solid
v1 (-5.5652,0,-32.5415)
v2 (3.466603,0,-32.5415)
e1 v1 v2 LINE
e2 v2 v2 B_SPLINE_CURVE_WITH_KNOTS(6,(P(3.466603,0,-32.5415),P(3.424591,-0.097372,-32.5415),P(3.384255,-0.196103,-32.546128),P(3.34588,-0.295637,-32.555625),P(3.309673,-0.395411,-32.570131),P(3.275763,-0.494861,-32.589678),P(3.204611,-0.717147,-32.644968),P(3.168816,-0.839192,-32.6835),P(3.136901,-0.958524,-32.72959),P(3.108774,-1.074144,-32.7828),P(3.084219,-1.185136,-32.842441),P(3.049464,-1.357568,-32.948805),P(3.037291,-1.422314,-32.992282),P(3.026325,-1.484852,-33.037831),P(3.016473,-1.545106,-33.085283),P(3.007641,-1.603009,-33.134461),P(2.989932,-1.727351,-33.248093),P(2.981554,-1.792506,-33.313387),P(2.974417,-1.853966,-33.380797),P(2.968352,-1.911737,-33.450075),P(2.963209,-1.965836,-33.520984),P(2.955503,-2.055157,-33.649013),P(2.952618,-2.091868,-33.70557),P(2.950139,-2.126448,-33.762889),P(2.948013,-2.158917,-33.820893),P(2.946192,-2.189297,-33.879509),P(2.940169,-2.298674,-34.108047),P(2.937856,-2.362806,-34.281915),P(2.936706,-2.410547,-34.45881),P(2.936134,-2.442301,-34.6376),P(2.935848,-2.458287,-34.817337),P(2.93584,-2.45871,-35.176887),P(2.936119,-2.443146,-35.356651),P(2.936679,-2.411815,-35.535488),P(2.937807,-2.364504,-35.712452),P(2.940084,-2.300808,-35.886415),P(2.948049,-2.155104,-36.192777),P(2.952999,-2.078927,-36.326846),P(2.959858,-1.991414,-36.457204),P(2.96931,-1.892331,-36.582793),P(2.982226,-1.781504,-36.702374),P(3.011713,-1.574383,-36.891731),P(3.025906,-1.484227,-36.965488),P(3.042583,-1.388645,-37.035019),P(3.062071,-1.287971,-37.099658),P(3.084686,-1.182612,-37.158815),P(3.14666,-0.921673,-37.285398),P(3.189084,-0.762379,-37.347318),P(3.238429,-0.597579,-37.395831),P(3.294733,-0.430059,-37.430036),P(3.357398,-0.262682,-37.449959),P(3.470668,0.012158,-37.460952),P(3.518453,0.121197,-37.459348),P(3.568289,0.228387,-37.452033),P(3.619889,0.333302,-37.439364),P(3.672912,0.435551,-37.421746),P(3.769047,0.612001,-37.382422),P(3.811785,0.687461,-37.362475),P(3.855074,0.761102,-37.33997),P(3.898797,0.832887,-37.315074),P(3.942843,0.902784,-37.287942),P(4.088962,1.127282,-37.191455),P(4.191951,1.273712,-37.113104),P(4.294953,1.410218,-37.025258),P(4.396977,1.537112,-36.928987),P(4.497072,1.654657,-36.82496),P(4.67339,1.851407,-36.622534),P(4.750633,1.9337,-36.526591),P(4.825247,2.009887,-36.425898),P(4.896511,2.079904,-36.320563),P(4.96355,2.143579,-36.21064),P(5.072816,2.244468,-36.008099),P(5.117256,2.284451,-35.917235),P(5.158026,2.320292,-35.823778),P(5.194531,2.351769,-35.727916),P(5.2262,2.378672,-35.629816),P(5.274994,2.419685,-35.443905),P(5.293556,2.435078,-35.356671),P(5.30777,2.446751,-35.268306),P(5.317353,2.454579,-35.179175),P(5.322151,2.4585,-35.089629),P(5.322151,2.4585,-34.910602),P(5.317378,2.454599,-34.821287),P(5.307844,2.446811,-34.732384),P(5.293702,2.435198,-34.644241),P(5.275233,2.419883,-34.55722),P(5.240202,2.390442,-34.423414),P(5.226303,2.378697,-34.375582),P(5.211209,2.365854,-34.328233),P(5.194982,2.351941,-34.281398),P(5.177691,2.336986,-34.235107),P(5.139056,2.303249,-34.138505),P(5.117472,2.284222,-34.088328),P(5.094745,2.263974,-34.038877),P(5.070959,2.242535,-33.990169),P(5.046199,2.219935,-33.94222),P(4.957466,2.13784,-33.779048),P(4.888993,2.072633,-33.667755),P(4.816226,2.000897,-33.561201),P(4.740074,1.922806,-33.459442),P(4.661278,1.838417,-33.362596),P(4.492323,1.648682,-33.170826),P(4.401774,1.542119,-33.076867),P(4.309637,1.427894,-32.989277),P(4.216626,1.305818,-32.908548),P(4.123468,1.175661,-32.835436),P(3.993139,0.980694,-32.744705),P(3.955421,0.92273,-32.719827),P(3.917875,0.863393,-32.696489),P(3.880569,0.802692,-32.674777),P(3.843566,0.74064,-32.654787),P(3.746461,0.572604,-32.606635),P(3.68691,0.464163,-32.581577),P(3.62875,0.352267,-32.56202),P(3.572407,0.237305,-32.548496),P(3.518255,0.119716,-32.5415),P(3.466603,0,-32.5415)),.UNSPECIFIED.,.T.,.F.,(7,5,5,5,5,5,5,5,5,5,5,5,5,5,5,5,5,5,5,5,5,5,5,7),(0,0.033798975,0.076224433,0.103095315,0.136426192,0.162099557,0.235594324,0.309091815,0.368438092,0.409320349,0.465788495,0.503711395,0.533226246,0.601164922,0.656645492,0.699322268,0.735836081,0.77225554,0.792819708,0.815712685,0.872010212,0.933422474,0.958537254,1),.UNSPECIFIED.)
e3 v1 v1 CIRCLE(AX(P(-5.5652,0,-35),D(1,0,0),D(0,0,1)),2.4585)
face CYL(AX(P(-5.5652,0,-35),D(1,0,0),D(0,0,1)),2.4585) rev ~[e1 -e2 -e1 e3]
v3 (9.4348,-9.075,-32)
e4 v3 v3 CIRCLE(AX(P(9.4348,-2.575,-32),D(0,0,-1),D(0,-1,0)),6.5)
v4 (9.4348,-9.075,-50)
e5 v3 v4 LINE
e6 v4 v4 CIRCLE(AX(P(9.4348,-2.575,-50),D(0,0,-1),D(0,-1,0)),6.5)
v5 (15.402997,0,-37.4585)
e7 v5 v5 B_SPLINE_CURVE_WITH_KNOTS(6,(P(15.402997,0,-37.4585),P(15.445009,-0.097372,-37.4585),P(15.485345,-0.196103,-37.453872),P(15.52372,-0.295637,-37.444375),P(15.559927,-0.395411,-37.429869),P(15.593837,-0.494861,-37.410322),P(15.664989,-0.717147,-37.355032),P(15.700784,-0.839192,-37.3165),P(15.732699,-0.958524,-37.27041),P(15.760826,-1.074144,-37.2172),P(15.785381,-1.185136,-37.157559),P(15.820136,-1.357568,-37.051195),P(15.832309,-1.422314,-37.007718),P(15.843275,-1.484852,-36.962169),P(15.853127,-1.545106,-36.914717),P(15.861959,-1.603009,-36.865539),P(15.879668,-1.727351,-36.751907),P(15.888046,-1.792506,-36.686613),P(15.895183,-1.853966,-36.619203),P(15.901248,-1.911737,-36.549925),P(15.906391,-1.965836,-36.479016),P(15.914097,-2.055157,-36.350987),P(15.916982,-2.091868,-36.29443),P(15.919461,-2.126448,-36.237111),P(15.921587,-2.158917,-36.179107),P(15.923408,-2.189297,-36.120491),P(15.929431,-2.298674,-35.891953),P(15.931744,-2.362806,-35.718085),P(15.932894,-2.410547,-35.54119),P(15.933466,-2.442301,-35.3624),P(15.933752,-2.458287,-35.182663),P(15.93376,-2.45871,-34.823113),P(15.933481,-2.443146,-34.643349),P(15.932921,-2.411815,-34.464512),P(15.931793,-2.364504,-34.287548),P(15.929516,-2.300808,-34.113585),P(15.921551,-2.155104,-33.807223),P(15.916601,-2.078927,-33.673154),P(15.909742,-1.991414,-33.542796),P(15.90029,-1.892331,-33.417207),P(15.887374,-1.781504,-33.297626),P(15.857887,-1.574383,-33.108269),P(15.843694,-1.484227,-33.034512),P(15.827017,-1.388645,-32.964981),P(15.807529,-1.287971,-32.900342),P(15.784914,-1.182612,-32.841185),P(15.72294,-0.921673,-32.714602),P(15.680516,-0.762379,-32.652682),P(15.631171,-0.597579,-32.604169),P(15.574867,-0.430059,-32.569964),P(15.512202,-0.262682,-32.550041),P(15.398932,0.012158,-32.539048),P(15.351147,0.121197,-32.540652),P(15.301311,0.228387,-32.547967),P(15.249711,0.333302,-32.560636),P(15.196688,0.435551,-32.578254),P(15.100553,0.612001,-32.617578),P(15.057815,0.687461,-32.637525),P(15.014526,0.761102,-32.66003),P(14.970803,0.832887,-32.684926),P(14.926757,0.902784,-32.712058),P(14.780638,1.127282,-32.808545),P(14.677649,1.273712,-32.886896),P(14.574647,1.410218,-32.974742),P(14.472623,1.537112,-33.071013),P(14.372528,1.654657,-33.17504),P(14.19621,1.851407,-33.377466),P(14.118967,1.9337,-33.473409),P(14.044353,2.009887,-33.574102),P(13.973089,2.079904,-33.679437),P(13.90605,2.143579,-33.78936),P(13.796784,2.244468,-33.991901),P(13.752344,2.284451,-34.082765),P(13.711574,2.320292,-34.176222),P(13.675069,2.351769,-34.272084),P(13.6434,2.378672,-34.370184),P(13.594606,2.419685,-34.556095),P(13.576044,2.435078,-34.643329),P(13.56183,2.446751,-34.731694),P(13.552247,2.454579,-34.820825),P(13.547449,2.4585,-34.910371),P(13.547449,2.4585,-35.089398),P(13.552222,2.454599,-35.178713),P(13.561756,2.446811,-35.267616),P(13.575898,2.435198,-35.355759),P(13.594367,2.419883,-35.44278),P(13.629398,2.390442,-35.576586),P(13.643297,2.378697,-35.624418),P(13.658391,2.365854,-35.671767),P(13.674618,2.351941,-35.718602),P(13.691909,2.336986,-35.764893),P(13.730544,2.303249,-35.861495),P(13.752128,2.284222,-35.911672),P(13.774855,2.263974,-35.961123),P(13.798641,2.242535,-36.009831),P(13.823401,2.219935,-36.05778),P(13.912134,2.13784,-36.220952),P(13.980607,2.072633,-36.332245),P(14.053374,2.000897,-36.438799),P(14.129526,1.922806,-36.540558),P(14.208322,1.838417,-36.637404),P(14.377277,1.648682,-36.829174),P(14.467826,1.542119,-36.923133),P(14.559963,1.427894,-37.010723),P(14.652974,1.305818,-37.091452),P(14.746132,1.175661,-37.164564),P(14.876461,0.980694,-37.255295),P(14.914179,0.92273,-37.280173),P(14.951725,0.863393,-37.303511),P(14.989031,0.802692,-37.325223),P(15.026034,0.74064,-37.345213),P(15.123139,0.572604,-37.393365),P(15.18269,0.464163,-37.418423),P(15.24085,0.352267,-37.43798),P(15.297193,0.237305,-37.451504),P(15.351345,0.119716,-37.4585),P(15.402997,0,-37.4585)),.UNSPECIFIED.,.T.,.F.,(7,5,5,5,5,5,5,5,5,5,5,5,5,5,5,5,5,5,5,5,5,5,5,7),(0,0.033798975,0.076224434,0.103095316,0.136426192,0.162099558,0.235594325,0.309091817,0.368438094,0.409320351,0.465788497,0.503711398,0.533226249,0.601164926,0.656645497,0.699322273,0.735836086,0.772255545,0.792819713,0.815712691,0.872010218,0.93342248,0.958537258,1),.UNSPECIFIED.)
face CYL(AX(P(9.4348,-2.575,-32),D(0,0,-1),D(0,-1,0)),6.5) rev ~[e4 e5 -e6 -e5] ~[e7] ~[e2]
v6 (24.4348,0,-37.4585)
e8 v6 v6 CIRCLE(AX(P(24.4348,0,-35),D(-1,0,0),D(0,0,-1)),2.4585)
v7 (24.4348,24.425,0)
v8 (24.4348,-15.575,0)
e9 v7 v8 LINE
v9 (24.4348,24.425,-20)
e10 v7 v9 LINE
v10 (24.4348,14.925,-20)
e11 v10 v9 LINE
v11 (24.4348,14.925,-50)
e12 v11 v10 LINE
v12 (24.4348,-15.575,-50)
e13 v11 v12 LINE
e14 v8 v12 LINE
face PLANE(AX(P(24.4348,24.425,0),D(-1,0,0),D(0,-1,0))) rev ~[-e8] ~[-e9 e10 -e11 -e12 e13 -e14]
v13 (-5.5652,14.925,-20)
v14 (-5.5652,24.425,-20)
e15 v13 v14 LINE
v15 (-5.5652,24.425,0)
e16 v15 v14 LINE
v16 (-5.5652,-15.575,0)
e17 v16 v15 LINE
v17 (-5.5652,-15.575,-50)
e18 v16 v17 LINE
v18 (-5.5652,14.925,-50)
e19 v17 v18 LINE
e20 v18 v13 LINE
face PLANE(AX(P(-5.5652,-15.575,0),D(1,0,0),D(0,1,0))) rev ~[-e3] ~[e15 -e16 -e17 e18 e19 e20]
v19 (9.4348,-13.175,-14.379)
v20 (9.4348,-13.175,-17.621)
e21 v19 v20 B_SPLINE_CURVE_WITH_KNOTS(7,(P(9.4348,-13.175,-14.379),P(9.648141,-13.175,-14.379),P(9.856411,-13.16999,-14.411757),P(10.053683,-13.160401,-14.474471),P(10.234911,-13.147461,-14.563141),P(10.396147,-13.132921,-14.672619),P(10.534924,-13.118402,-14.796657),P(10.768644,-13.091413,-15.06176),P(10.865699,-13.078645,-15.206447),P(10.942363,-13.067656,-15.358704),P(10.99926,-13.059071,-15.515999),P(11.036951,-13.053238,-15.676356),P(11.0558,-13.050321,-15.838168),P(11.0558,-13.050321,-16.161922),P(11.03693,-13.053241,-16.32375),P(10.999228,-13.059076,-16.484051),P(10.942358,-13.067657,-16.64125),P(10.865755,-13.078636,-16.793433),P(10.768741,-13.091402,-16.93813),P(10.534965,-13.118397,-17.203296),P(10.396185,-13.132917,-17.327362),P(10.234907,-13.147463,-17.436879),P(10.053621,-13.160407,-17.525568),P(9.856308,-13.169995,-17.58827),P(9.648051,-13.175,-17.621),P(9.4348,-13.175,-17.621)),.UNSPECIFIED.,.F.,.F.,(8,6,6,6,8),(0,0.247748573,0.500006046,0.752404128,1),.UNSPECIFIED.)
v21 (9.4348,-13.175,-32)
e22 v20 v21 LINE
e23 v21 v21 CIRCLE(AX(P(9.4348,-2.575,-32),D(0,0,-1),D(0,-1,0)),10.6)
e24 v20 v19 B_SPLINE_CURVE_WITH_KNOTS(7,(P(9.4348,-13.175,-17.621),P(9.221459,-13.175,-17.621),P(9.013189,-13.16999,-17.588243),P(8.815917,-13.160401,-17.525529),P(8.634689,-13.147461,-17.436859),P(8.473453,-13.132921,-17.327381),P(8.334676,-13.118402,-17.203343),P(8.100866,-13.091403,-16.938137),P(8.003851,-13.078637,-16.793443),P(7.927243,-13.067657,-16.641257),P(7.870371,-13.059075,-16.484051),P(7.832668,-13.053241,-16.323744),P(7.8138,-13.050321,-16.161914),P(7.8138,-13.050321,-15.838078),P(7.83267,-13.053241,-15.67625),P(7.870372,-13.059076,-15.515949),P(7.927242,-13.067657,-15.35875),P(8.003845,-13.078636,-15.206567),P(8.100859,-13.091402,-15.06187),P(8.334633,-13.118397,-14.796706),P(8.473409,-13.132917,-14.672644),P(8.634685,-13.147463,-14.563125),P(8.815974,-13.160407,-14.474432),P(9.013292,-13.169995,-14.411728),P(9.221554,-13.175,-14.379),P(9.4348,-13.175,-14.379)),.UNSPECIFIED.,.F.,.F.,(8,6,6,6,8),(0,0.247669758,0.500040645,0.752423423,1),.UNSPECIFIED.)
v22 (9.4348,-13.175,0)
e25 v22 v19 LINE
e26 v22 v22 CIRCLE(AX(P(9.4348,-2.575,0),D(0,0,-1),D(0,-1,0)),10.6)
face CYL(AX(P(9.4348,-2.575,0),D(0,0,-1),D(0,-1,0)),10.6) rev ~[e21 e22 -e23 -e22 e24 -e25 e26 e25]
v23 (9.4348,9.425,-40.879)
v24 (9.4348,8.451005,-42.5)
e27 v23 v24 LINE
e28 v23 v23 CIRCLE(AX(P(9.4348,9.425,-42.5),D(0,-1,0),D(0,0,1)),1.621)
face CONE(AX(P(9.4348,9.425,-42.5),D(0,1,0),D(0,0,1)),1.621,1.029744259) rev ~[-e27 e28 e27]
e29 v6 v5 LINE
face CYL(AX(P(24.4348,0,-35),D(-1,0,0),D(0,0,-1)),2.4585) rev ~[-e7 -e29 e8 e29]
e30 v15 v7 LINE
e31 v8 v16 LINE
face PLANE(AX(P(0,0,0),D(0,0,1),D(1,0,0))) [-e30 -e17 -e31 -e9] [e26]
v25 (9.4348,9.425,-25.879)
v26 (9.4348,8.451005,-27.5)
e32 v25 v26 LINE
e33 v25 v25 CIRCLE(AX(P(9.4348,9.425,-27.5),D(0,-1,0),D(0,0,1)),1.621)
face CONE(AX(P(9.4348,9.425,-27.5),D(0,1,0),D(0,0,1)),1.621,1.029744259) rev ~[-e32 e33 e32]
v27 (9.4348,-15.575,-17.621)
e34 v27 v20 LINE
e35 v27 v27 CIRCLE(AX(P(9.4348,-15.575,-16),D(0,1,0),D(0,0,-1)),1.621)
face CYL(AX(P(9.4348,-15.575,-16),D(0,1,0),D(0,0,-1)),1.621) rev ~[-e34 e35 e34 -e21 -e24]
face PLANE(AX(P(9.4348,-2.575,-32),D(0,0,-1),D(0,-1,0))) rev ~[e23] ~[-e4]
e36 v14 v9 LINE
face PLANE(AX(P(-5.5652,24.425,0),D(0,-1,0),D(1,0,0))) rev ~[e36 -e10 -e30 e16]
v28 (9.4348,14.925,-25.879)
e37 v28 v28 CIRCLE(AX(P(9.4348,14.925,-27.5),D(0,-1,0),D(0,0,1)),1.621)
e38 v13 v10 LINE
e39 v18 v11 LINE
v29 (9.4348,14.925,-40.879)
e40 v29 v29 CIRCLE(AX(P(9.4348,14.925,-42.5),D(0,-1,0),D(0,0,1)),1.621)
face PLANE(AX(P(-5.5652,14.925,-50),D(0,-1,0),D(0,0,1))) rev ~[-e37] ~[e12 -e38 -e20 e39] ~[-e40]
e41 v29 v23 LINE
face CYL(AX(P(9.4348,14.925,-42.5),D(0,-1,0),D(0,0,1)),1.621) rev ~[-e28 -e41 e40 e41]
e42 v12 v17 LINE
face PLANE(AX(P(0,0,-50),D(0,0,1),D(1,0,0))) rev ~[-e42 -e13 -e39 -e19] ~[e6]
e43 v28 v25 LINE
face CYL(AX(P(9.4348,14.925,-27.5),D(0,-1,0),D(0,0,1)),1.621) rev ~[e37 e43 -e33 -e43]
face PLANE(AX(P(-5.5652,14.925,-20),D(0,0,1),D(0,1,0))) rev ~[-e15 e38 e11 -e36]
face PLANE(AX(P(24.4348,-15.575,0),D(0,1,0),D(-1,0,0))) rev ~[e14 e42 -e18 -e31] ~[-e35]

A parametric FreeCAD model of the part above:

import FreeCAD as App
import Part
import Sketcher
from FreeCAD import Vector


def add_polygon(sketch, points):
    """Adds a closed chain of lines whose ends are joined by coincident constraints."""
    first, n = sketch.GeometryCount, len(points)
    for a, b in zip(points, points[1:] + points[:1]):
        sketch.addGeometry(Part.LineSegment(App.Vector(*a, 0), App.Vector(*b, 0)), False)
    for i in range(n):
        sketch.addConstraint(Sketcher.Constraint("Coincident", first + i, 2, first + (i + 1) % n, 1))

doc = App.newDocument("Part")
body = doc.addObject("PartDesign::Body", "Body")

sketch1 = body.newObject("Sketcher::SketchObject", "Sketch")
sketch1.AttachmentSupport = (doc.getObject("XY_Plane"), [""])
sketch1.MapMode = "FlatFace"
add_polygon(sketch1, [(24, 24), (-6, 24), (-6, -16), (24, -16)])
sketch1.addConstraint([
    Sketcher.Constraint("Horizontal", 0),
    Sketcher.Constraint("Vertical", 1),
    Sketcher.Constraint("Horizontal", 2),
    Sketcher.Constraint("Vertical", 3),
    Sketcher.Constraint("DistanceX", 0, 2, 0, 1, 30.0),
    Sketcher.Constraint("DistanceY", 1, 2, 1, 1, 40.0),
    Sketcher.Constraint("DistanceY", -1, 1, 0, 2, 24.425),
    Sketcher.Constraint("DistanceX", 0, 2, -1, 1, 5.5652),
])
pad1 = body.newObject("PartDesign::Pad", "Pad")
pad1.Profile = sketch1
pad1.Length = 50
pad1.Reversed = True

sketch2 = body.newObject("Sketcher::SketchObject", "Sketch001")
sketch2.AttachmentSupport = (doc.getObject("XY_Plane"), [""])
sketch2.MapMode = "FlatFace"
sketch2.addGeometry(Part.Circle(Vector(9, -3, 0), Vector(0, 0, 1), 6), False)
sketch2.addConstraint([
    Sketcher.Constraint("Diameter", 0, 13.0),
    Sketcher.Constraint("DistanceY", 0, 3, -1, 1, 2.575),
    Sketcher.Constraint("DistanceX", -1, 1, 0, 3, 9.4348),
])
doc.recompute()
hole = body.newObject("PartDesign::Hole", "Hole")
hole.Profile = sketch2
hole.ThreadType = "None"
hole.Diameter = 13
hole.DepthType = "ThroughAll"
hole.HoleCutType = "Counterbore"
hole.HoleCutDiameter = 21.2
hole.HoleCutDepth = 32

sketch3 = body.newObject("Sketcher::SketchObject", "Sketch002")
sketch3.AttachmentSupport = (doc.getObject("YZ_Plane"), [""])
sketch3.MapMode = "FlatFace"
sketch3.AttachmentOffset = App.Placement(Vector(0, 0, -5.5652), App.Rotation())
sketch3.addGeometry(Part.Circle(Vector(0, -35, 0), Vector(0, 0, 1), 2.5), False)
sketch3.addConstraint([
    Sketcher.Constraint("PointOnObject", 0, 3, -2),
    Sketcher.Constraint("Diameter", 0, 4.917),
    Sketcher.Constraint("DistanceY", 0, 3, -1, 1, 35.0),
])
doc.recompute()
hole2 = body.newObject("PartDesign::Hole", "Hole001")
hole2.Profile = sketch3
hole2.ThreadType = "None"
hole2.Diameter = 4.917
hole2.DepthType = "Dimension"
hole2.Depth = 13
hole2.DrillPoint = "Angled"
hole2.DrillPointAngle = 118
hole2.Reversed = True

sketch4 = body.newObject("Sketcher::SketchObject", "Sketch003")
sketch4.AttachmentSupport = (doc.getObject("YZ_Plane"), [""])
sketch4.MapMode = "FlatFace"
sketch4.AttachmentOffset = App.Placement(Vector(0, 0, -5.5652), App.Rotation())
add_polygon(sketch4, [(24, -50), (15, -50), (15, -20), (24, -20)])
sketch4.addConstraint([
    Sketcher.Constraint("Horizontal", 0),
    Sketcher.Constraint("Vertical", 1),
    Sketcher.Constraint("Horizontal", 2),
    Sketcher.Constraint("Vertical", 3),
    Sketcher.Constraint("DistanceY", 1, 1, 1, 2, 30.0),
    Sketcher.Constraint("DistanceX", 0, 2, 0, 1, 9.5),
    Sketcher.Constraint("DistanceY", 0, 2, -1, 1, 50.0),
    Sketcher.Constraint("DistanceX", -1, 1, 0, 2, 14.925),
])
pocket1 = body.newObject("PartDesign::Pocket", "Pocket")
pocket1.Profile = sketch4
pocket1.Length = 31.25
pocket1.Reversed = True

sketch5 = body.newObject("Sketcher::SketchObject", "Sketch004")
sketch5.AttachmentSupport = (doc.getObject("YZ_Plane"), [""])
sketch5.MapMode = "FlatFace"
sketch5.AttachmentOffset = App.Placement(Vector(0, 0, 24.4348), App.Rotation())
sketch5.addGeometry(Part.Circle(Vector(0, -35, 0), Vector(0, 0, 1), 2.5), False)
sketch5.addConstraint([
    Sketcher.Constraint("PointOnObject", 0, 3, -2),
    Sketcher.Constraint("Diameter", 0, 4.917),
    Sketcher.Constraint("DistanceY", 0, 3, -1, 1, 35.0),
])
doc.recompute()
hole3 = body.newObject("PartDesign::Hole", "Hole002")
hole3.Profile = sketch5
hole3.ThreadType = "None"
hole3.Diameter = 4.917
hole3.DepthType = "Dimension"
hole3.Depth = 13
hole3.DrillPoint = "Angled"
hole3.DrillPointAngle = 118

sketch6 = body.newObject("Sketcher::SketchObject", "Sketch005")
sketch6.AttachmentSupport = (doc.getObject("XZ_Plane"), [""])
sketch6.MapMode = "FlatFace"
sketch6.AttachmentOffset = App.Placement(Vector(0, 0, 15.575), App.Rotation())
sketch6.addGeometry(Part.Circle(Vector(9.4, -16, 0), Vector(0, 0, 1), 1.6), False)
sketch6.addConstraint([
    Sketcher.Constraint("Diameter", 0, 3.242),
    Sketcher.Constraint("DistanceY", 0, 3, -1, 1, 16.0),
    Sketcher.Constraint("DistanceX", -1, 1, 0, 3, 9.4348),
])
doc.recompute()
hole4 = body.newObject("PartDesign::Hole", "Hole003")
hole4.Profile = sketch6
hole4.ThreadType = "None"
hole4.Diameter = 3.242
hole4.DepthType = "Dimension"
hole4.Depth = 5.18
hole4.DrillPoint = "Angled"
hole4.DrillPointAngle = 118

sketch7 = body.newObject("Sketcher::SketchObject", "Sketch006")
sketch7.AttachmentSupport = (doc.getObject("XZ_Plane"), [""])
sketch7.MapMode = "FlatFace"
sketch7.AttachmentOffset = App.Placement(Vector(0, 0, -14.925), App.Rotation())
sketch7.addGeometry([
    Part.Circle(Vector(9.4, -27.5, 0), Vector(0, 0, 1), 1.6),
    Part.Circle(Vector(9.4, -42.5, 0), Vector(0, 0, 1), 1.6),
], False)
sketch7.addConstraint([
    Sketcher.Constraint("Equal", 0, 1),
    Sketcher.Constraint("Vertical", 0, 3, 1, 3),
    Sketcher.Constraint("Diameter", 0, 3.242),
    Sketcher.Constraint("DistanceY", 1, 3, 0, 3, 15.0),
    Sketcher.Constraint("DistanceY", 0, 3, -1, 1, 27.5),
    Sketcher.Constraint("DistanceX", -1, 1, 0, 3, 9.4348),
])
doc.recompute()
hole5 = body.newObject("PartDesign::Hole", "Hole004")
hole5.Profile = sketch7
hole5.ThreadType = "None"
hole5.Diameter = 3.242
hole5.DepthType = "Dimension"
hole5.Depth = 5.5
hole5.DrillPoint = "Angled"
hole5.DrillPointAngle = 118
hole5.Reversed = True

doc.recompute()
